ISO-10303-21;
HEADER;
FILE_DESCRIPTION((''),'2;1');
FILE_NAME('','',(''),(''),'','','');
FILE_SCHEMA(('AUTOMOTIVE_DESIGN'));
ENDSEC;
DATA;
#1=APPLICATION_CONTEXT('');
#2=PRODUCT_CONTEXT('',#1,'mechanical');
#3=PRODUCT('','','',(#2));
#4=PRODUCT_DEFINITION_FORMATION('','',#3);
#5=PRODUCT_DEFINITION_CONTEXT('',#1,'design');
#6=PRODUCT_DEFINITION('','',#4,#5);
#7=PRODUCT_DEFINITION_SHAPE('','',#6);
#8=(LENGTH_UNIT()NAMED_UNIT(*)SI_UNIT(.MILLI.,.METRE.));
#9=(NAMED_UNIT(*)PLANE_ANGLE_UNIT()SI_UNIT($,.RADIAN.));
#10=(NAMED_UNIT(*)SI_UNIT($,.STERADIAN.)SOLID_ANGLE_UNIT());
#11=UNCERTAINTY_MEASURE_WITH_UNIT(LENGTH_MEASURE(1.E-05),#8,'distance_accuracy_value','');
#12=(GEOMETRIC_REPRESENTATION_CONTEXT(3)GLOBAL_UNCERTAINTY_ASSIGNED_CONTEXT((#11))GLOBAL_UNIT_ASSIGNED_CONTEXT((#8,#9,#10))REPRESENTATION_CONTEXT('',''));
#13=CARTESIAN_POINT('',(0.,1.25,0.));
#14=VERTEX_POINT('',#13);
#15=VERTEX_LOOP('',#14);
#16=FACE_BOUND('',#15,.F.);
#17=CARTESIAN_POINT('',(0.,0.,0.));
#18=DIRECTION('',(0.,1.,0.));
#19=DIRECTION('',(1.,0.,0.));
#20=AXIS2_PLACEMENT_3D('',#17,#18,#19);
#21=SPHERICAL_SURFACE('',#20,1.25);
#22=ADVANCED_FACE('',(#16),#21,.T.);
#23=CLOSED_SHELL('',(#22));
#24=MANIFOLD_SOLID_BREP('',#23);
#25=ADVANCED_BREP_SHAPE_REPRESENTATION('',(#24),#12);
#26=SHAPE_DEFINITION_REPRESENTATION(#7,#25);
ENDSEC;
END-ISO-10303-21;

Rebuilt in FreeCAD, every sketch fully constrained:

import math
import FreeCAD as App
import Part
import Sketcher
from FreeCAD import Vector
Q = App.Units.Quantity

doc = App.newDocument("Part")
body = doc.addObject("PartDesign::Body", "Body")

# Sketch on XY plane
sketch1 = body.newObject("Sketcher::SketchObject", "Sketch")
sketch1.AttachmentSupport = (doc.getObject("XY_Plane"), [""])
sketch1.MapMode = "FlatFace"
sketch1.addGeometry([
    Part.LineSegment(Vector(0, 1.25, 0), Vector(0, -1.25, 0)),
    Part.ArcOfCircle(Part.Circle(Vector(0, 0, 0), Vector(0, 0, 1), 1.25), math.radians(-90), math.radians(90)),
], False)
sketch1.addConstraint([
    Sketcher.Constraint("Coincident", 0, 1, 1, 2),
    Sketcher.Constraint("Coincident", 1, 1, 0, 2),
    Sketcher.Constraint("Vertical", 0),
    Sketcher.Constraint("Coincident", 1, 3, -1, 1),
    Sketcher.Constraint("PointOnObject", 0, 1, -2),
    Sketcher.Constraint("Radius", 1, Q("1.25 mm")),
])
revolution = body.newObject("PartDesign::Revolution", "Revolution")
revolution.Profile = sketch1
revolution.ReferenceAxis = (sketch1, ["V_Axis"])
revolution.Angle = 360

doc.recompute()
